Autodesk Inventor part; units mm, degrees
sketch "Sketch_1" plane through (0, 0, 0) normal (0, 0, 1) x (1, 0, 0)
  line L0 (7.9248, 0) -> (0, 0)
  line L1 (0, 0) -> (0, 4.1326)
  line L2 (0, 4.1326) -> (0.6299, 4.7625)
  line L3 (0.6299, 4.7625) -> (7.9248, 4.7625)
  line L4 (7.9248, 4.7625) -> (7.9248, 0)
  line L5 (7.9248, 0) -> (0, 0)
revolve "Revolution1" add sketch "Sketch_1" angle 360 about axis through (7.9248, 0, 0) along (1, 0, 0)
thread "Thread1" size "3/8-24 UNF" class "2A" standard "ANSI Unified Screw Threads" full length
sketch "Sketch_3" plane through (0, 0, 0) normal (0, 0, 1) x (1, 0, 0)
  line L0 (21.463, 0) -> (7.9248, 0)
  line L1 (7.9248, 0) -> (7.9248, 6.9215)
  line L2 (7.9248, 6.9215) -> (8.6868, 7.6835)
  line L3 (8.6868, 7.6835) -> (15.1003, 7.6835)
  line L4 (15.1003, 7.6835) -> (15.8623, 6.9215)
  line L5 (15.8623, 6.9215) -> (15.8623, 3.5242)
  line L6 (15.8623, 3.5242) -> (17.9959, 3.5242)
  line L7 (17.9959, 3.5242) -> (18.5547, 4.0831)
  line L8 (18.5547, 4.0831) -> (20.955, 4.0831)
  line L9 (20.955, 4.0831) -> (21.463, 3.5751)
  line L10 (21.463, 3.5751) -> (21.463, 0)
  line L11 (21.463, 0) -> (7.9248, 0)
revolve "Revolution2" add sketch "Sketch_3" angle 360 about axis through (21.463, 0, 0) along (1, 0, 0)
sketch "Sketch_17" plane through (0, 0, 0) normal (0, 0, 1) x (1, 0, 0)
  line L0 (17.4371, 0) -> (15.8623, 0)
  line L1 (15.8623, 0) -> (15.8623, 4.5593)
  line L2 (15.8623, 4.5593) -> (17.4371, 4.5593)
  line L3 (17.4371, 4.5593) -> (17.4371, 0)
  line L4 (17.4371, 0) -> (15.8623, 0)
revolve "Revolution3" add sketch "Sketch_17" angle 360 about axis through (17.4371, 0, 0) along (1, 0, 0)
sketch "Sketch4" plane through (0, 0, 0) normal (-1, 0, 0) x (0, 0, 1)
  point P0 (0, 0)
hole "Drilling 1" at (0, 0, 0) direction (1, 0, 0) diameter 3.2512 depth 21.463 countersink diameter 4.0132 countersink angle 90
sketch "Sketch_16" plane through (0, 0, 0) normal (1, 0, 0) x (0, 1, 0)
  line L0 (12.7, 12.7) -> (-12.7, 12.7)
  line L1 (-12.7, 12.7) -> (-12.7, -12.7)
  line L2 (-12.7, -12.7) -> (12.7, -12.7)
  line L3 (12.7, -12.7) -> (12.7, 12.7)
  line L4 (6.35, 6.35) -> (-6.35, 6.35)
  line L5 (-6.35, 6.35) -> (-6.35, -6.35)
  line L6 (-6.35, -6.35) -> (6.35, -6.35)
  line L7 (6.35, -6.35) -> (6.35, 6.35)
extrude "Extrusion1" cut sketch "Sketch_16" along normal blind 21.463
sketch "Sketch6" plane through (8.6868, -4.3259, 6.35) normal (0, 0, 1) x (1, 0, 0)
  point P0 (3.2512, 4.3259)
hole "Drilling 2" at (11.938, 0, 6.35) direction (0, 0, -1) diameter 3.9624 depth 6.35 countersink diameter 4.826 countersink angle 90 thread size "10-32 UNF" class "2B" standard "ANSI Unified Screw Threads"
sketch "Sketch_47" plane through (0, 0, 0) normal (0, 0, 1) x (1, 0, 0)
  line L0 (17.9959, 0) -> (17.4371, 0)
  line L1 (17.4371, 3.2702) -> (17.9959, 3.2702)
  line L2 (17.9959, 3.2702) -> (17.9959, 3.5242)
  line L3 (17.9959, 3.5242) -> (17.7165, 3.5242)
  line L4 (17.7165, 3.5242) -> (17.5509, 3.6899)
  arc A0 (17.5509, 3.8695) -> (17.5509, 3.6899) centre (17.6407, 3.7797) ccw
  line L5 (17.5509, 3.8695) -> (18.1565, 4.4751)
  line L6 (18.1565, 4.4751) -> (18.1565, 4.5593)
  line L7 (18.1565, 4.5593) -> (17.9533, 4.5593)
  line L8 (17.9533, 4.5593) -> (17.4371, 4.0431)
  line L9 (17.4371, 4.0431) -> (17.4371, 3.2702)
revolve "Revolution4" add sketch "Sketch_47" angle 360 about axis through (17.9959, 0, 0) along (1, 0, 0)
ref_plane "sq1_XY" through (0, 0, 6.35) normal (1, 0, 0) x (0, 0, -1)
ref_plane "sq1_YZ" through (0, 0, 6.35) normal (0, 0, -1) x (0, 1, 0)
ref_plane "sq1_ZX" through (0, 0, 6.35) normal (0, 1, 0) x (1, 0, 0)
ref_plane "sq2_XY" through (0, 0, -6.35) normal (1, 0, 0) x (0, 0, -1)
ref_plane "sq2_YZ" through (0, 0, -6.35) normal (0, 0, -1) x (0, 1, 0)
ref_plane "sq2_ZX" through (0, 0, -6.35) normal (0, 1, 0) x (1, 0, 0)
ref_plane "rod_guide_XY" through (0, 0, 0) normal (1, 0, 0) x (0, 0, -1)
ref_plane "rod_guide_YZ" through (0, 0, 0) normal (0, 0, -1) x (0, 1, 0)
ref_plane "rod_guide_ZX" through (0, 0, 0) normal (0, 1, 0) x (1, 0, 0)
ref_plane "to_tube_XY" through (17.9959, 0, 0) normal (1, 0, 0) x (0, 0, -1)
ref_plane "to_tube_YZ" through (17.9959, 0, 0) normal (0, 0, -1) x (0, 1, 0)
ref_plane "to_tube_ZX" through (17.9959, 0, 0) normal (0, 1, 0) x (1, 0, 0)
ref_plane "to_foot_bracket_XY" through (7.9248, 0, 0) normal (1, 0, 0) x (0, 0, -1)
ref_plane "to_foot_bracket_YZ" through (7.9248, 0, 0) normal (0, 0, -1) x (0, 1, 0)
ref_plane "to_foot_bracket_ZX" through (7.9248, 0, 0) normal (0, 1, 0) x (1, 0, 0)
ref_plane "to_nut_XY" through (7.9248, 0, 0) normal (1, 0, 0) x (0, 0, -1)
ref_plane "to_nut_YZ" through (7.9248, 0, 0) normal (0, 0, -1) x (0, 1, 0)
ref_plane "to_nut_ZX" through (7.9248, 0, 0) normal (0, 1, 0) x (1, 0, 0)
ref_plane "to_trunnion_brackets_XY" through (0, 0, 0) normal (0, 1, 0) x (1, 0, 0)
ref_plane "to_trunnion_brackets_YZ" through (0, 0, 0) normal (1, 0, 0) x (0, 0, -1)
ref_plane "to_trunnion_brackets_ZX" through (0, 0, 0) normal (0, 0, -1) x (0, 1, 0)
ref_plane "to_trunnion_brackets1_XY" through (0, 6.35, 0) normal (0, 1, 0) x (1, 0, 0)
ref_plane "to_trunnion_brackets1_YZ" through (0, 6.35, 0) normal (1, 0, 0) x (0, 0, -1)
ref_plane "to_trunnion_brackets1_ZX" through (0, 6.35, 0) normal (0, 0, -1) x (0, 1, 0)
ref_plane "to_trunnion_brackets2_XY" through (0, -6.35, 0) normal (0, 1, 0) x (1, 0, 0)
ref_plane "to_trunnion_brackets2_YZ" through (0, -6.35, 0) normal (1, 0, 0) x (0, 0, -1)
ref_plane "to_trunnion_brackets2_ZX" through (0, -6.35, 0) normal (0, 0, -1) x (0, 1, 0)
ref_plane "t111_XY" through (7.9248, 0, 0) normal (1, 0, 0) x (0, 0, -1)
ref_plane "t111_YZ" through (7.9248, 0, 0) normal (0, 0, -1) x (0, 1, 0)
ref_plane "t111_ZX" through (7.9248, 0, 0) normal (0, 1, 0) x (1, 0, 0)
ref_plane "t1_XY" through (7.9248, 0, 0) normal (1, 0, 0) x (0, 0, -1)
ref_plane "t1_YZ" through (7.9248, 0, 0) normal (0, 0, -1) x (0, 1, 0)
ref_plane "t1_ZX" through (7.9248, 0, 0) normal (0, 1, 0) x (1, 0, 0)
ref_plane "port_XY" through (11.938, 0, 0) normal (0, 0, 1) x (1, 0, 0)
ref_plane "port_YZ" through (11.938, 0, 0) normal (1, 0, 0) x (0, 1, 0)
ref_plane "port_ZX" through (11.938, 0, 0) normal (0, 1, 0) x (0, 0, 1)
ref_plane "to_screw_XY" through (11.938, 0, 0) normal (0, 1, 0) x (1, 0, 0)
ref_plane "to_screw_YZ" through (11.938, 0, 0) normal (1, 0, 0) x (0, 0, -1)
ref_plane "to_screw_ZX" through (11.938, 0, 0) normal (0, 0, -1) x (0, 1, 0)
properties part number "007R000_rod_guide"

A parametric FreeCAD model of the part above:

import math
import FreeCAD as App
import Part
import Sketcher

V = App.Vector
Q = App.Units.Quantity

doc = App.newDocument("Part")
body = doc.addObject("PartDesign::Body", "Body")

# Sketch on XY plane
sketch1 = body.newObject("Sketcher::SketchObject", "Sketch")
sketch1.AttachmentSupport = (doc.getObject("XY_Plane"), [""])
sketch1.MapMode = "FlatFace"
sketch1.addGeometry([
    Part.LineSegment(V(0, 0, 0), V(7.9248, 0, 0)),  # 0
    Part.LineSegment(V(7.9248, 0, 0), V(7.9248, 4.7625, 0)),  # 1
    Part.LineSegment(V(7.9248, 4.7625, 0), V(0.6299, 4.7625, 0)),  # 2
    Part.LineSegment(V(0.6299, 4.7625, 0), V(0, 4.1326, 0)),  # 3
    Part.LineSegment(V(0, 4.1326, 0), V(0, 0, 0)),  # 4
], False)
sketch1.addConstraint([
    Sketcher.Constraint("Coincident", 0, 2, 1, 1),
    Sketcher.Constraint("Coincident", 1, 2, 2, 1),
    Sketcher.Constraint("Coincident", 2, 2, 3, 1),
    Sketcher.Constraint("Coincident", 3, 2, 4, 1),
    Sketcher.Constraint("Coincident", 4, 2, 0, 1),
    Sketcher.Constraint("Horizontal", 0),
    Sketcher.Constraint("Vertical", 1),
    Sketcher.Constraint("Horizontal", 2),
    Sketcher.Constraint("Vertical", 4),
    Sketcher.Constraint("Coincident", 4, 2, -1, 1),
    Sketcher.Constraint("Angle", 3, Q("-135 deg")),
    Sketcher.Constraint("DistanceX", 0, 1, 0, 2, Q("0.312 in")),
    Sketcher.Constraint("DistanceY", 1, 1, 1, 2, Q("0.1875 in")),
    Sketcher.Constraint("DistanceX", 2, 2, 2, 1, Q("0.2872 in")),
])
revolution = body.newObject("PartDesign::Revolution", "Revolution")
revolution.Profile = sketch1
revolution.ReferenceAxis = (sketch1, ["H_Axis"])
revolution.Angle = 360

# Sketch on XY plane
sketch2 = body.newObject("Sketcher::SketchObject", "Sketch001")
sketch2.AttachmentSupport = (doc.getObject("XY_Plane"), [""])
sketch2.MapMode = "FlatFace"
sketch2.addGeometry([
    Part.LineSegment(V(7.9248, 0, 0), V(21.463, 0, 0)),  # 0
    Part.LineSegment(V(21.463, 0, 0), V(21.463, 3.5751, 0)),  # 1
    Part.LineSegment(V(21.463, 3.5751, 0), V(20.955, 4.0831, 0)),  # 2
    Part.LineSegment(V(20.955, 4.0831, 0), V(18.5547, 4.0831, 0)),  # 3
    Part.LineSegment(V(18.5547, 4.0831, 0), V(17.9959, 3.5242, 0)),  # 4
    Part.LineSegment(V(17.9959, 3.5242, 0), V(15.8623, 3.5242, 0)),  # 5
    Part.LineSegment(V(15.8623, 3.5242, 0), V(15.8623, 6.9215, 0)),  # 6
    Part.LineSegment(V(15.8623, 6.9215, 0), V(15.1003, 7.6835, 0)),  # 7
    Part.LineSegment(V(15.1003, 7.6835, 0), V(8.6868, 7.6835, 0)),  # 8
    Part.LineSegment(V(8.6868, 7.6835, 0), V(7.9248, 6.9215, 0)),  # 9
    Part.LineSegment(V(7.9248, 6.9215, 0), V(7.9248, 0, 0)),  # 10
], False)
sketch2.addConstraint([
    Sketcher.Constraint("Coincident", 0, 2, 1, 1),
    Sketcher.Constraint("Coincident", 1, 2, 2, 1),
    Sketcher.Constraint("Coincident", 2, 2, 3, 1),
    Sketcher.Constraint("Coincident", 3, 2, 4, 1),
    Sketcher.Constraint("Coincident", 4, 2, 5, 1),
    Sketcher.Constraint("Coincident", 5, 2, 6, 1),
    Sketcher.Constraint("Coincident", 6, 2, 7, 1),
    Sketcher.Constraint("Coincident", 7, 2, 8, 1),
    Sketcher.Constraint("Coincident", 8, 2, 9, 1),
    Sketcher.Constraint("Coincident", 9, 2, 10, 1),
    Sketcher.Constraint("Coincident", 10, 2, 0, 1),
    Sketcher.Constraint("Horizontal", 0),
    Sketcher.Constraint("Vertical", 1),
    Sketcher.Constraint("Horizontal", 3),
    Sketcher.Constraint("Horizontal", 5),
    Sketcher.Constraint("Vertical", 6),
    Sketcher.Constraint("Horizontal", 8),
    Sketcher.Constraint("Vertical", 10),
    Sketcher.Constraint("PointOnObject", 0, 2, -1),
    Sketcher.Constraint("Perpendicular", 2, 4),
    Sketcher.Constraint("Perpendicular", 4, 7),
    Sketcher.Constraint("Perpendicular", 7, 9),
    Sketcher.Constraint("Horizontal", 6, 2, 9, 2),
    Sketcher.Constraint("Equal", 7, 9),
    Sketcher.Constraint("DistanceX", 0, 1, 0, 2, Q("0.533 in")),
    Sketcher.Constraint("DistanceX", 5, 2, 5, 1, Q("0.084 in")),
    Sketcher.Constraint("DistanceX", 2, 2, 1, 2, Q("0.02 in")),
    Sketcher.Constraint("DistanceX", 7, 2, 6, 2, Q("0.03 in")),
    Sketcher.Constraint("DistanceX", 3, 2, 3, 1, Q("0.0945 in")),
    Sketcher.Constraint("DistanceX", 8, 2, 8, 1, Q("0.2525 in")),
    Sketcher.Constraint("DistanceY", 10, 2, 10, 1, Q("0.2725 in")),
    Sketcher.Constraint("DistanceX", -1, 1, 0, 2, Q("0.845 in")),
    Sketcher.Constraint("DistanceY", 1, 1, 1, 2, 3.575),
])
revolution2 = body.newObject("PartDesign::Revolution", "Revolution001")
revolution2.Profile = sketch2
revolution2.ReferenceAxis = (sketch2, ["H_Axis"])
revolution2.Angle = 360

# Sketch on XY plane
sketch3 = body.newObject("Sketcher::SketchObject", "Sketch002")
sketch3.AttachmentSupport = (doc.getObject("XY_Plane"), [""])
sketch3.MapMode = "FlatFace"
sketch3.addGeometry([
    Part.LineSegment(V(15.8623, 0, 0), V(17.4371, 0, 0)),
    Part.LineSegment(V(17.4371, 0, 0), V(17.4371, 4.5593, 0)),
    Part.LineSegment(V(17.4371, 4.5593, 0), V(15.8623, 4.5593, 0)),
    Part.LineSegment(V(15.8623, 4.5593, 0), V(15.8623, 0, 0)),
], False)
sketch3.addConstraint([
    Sketcher.Constraint("Coincident", 0, 2, 1, 1),
    Sketcher.Constraint("Coincident", 1, 2, 2, 1),
    Sketcher.Constraint("Coincident", 2, 2, 3, 1),
    Sketcher.Constraint("Coincident", 3, 2, 0, 1),
    Sketcher.Constraint("Horizontal", 0),
    Sketcher.Constraint("Vertical", 1),
    Sketcher.Constraint("Horizontal", 2),
    Sketcher.Constraint("Vertical", 3),
    Sketcher.Constraint("PointOnObject", 0, 2, -1),
    Sketcher.Constraint("DistanceX", 0, 1, 0, 2, Q("0.062 in")),
    Sketcher.Constraint("DistanceY", 1, 1, 1, 2, Q("0.1795 in")),
    Sketcher.Constraint("DistanceX", -1, 1, 0, 2, Q("0.6865 in")),
])
revolution3 = body.newObject("PartDesign::Revolution", "Revolution002")
revolution3.Profile = sketch3
revolution3.ReferenceAxis = (sketch3, ["H_Axis"])
revolution3.Angle = 360

# Sketch on YZ plane
sketch4 = body.newObject("Sketcher::SketchObject", "Sketch003")
sketch4.AttachmentSupport = (doc.getObject("YZ_Plane"), [""])
sketch4.MapMode = "FlatFace"
sketch4.addGeometry(Part.Circle(V(0, 0, 0), V(0, 0, 1), 1.6256), False)
sketch4.addConstraint([
    Sketcher.Constraint("Coincident", 0, 3, -1, 1),
    Sketcher.Constraint("Diameter", 0, Q("0.128 in")),
])
doc.recompute()
hole = body.newObject("PartDesign::Hole", "Hole")
hole.Profile = sketch4
hole.ThreadType = "None"
hole.Diameter = Q("0.128 in")
hole.DepthType = "Dimension"
hole.Depth = Q("0.845 in")
hole.DrillPoint = "Flat"
hole.HoleCutType = "Countersink"
hole.HoleCutDiameter = Q("0.158 in")
hole.HoleCutCountersinkAngle = 90
hole.Reversed = True

# Sketch on YZ plane
sketch5 = body.newObject("Sketcher::SketchObject", "Sketch004")
sketch5.AttachmentSupport = (doc.getObject("YZ_Plane"), [""])
sketch5.MapMode = "FlatFace"
sketch5.addGeometry([
    Part.LineSegment(V(12.7, -12.7, 0), V(12.7, 12.7, 0)),  # 0
    Part.LineSegment(V(12.7, 12.7, 0), V(-12.7, 12.7, 0)),  # 1
    Part.LineSegment(V(-12.7, 12.7, 0), V(-12.7, -12.7, 0)),  # 2
    Part.LineSegment(V(-12.7, -12.7, 0), V(12.7, -12.7, 0)),  # 3
    Part.LineSegment(V(-6.35, 6.35, 0), V(6.35, 6.35, 0)),  # 4
    Part.LineSegment(V(6.35, 6.35, 0), V(6.35, -6.35, 0)),  # 5
    Part.LineSegment(V(6.35, -6.35, 0), V(-6.35, -6.35, 0)),  # 6
    Part.LineSegment(V(-6.35, -6.35, 0), V(-6.35, 6.35, 0)),  # 7
], False)
sketch5.addConstraint([
    Sketcher.Constraint("Coincident", 0, 2, 1, 1),
    Sketcher.Constraint("Coincident", 1, 2, 2, 1),
    Sketcher.Constraint("Coincident", 2, 2, 3, 1),
    Sketcher.Constraint("Coincident", 3, 2, 0, 1),
    Sketcher.Constraint("Coincident", 4, 2, 5, 1),
    Sketcher.Constraint("Coincident", 5, 2, 6, 1),
    Sketcher.Constraint("Coincident", 6, 2, 7, 1),
    Sketcher.Constraint("Coincident", 7, 2, 4, 1),
    Sketcher.Constraint("Vertical", 0),
    Sketcher.Constraint("Horizontal", 1),
    Sketcher.Constraint("Vertical", 2),
    Sketcher.Constraint("Horizontal", 3),
    Sketcher.Constraint("Horizontal", 4),
    Sketcher.Constraint("Vertical", 5),
    Sketcher.Constraint("Horizontal", 6),
    Sketcher.Constraint("Vertical", 7),
    Sketcher.Constraint("Symmetric", 0, 2, 2, 2, -1, 1),
    Sketcher.Constraint("Symmetric", 4, 2, 6, 2, -1, 1),
    Sketcher.Constraint("Equal", 3, 0),
    Sketcher.Constraint("Equal", 6, 5),
    Sketcher.Constraint("DistanceX", 1, 2, 1, 1, Q("1 in")),
    Sketcher.Constraint("DistanceX", 4, 1, 4, 2, Q("0.5 in")),
])
pocket1 = body.newObject("PartDesign::Pocket", "Pocket")
pocket1.Profile = sketch5
pocket1.Length = Q("0.845 in")
pocket1.Reversed = True

# Sketch on XY plane
sketch6 = body.newObject("Sketcher::SketchObject", "Sketch005")
sketch6.AttachmentSupport = (doc.getObject("XY_Plane"), [""])
sketch6.MapMode = "FlatFace"
sketch6.AttachmentOffset = App.Placement(V(0, 0, 0.25 * 25.4), App.Rotation())
sketch6.addGeometry(Part.Circle(V(11.938, 0, 0), V(0, 0, 1), 1.9812), False)
sketch6.addConstraint([
    Sketcher.Constraint("PointOnObject", 0, 3, -1),
    Sketcher.Constraint("Diameter", 0, Q("0.156 in")),
    Sketcher.Constraint("DistanceX", -1, 1, 0, 3, Q("0.47 in")),
])
doc.recompute()
hole2 = body.newObject("PartDesign::Hole", "Hole001")
hole2.Profile = sketch6
hole2.ThreadType = "None"
hole2.Diameter = Q("0.156 in")
hole2.DepthType = "Dimension"
hole2.Depth = Q("0.25 in")
hole2.DrillPoint = "Flat"
hole2.HoleCutType = "Countersink"
hole2.HoleCutDiameter = Q("0.19 in")
hole2.HoleCutCountersinkAngle = 90

# Sketch on XY plane
sketch7 = body.newObject("Sketcher::SketchObject", "Sketch006")
sketch7.AttachmentSupport = (doc.getObject("XY_Plane"), [""])
sketch7.MapMode = "FlatFace"
sketch7.addGeometry([
    Part.LineSegment(V(17.4371, 4.0431, 0), V(17.4371, 3.2702, 0)),  # 0
    Part.LineSegment(V(17.4371, 3.2702, 0), V(17.9959, 3.2702, 0)),  # 1
    Part.LineSegment(V(17.9959, 3.2702, 0), V(17.9959, 3.5242, 0)),  # 2
    Part.LineSegment(V(17.9959, 3.5242, 0), V(17.7165, 3.5242, 0)),  # 3
    Part.LineSegment(V(17.7165, 3.5242, 0), V(17.5509, 3.6899, 0)),  # 4
    Part.ArcOfCircle(Part.Circle(V(17.6407, 3.7797, 0), V(0, 0, 1), 0.126996), math.radians(135), math.radians(225)),  # 5
    Part.LineSegment(V(17.5509, 3.8695, 0), V(18.1565, 4.4751, 0)),  # 6
    Part.LineSegment(V(18.1565, 4.4751, 0), V(18.1565, 4.5593, 0)),  # 7
    Part.LineSegment(V(18.1565, 4.5593, 0), V(17.9533, 4.5593, 0)),  # 8
    Part.LineSegment(V(17.9533, 4.5593, 0), V(17.4371, 4.0431, 0)),  # 9
], False)
sketch7.addConstraint([
    Sketcher.Constraint("Coincident", 0, 2, 1, 1),
    Sketcher.Constraint("Coincident", 1, 2, 2, 1),
    Sketcher.Constraint("Coincident", 2, 2, 3, 1),
    Sketcher.Constraint("Coincident", 3, 2, 4, 1),
    Sketcher.Constraint("Tangent", 4, 2, 5, 2),
    Sketcher.Constraint("Tangent", 5, 1, 6, 1),
    Sketcher.Constraint("Coincident", 6, 2, 7, 1),
    Sketcher.Constraint("Coincident", 7, 2, 8, 1),
    Sketcher.Constraint("Coincident", 8, 2, 9, 1),
    Sketcher.Constraint("Coincident", 9, 2, 0, 1),
    Sketcher.Constraint("Vertical", 0),
    Sketcher.Constraint("Horizontal", 1),
    Sketcher.Constraint("Vertical", 2),
    Sketcher.Constraint("Horizontal", 3),
    Sketcher.Constraint("Vertical", 7),
    Sketcher.Constraint("Horizontal", 8),
    Sketcher.Constraint("Perpendicular", 4, 6),
    Sketcher.Constraint("Parallel", 6, 9),
    Sketcher.Constraint("Vertical", 4, 2, 5, 1),
    Sketcher.Constraint("Radius", 5, Q("0.005 in")),
    Sketcher.Constraint("DistanceY", 2, 1, 2, 2, Q("0.01 in")),
    Sketcher.Constraint("DistanceX", 1, 1, 1, 2, Q("0.022 in")),
    Sketcher.Constraint("DistanceX", 3, 2, 3, 1, Q("0.011 in")),
    Sketcher.Constraint("DistanceX", 8, 2, 8, 1, Q("0.008 in")),
    Sketcher.Constraint("DistanceY", 0, 2, 0, 1, 0.773),
    Sketcher.Constraint("DistanceY", 7, 1, 7, 2, 0.0842),
    Sketcher.Constraint("DistanceY", -1, 1, 5, 3, Q("0.1488 in")),
    Sketcher.Constraint("DistanceX", -1, 1, 0, 2, Q("0.6865 in")),
    Sketcher.Constraint("DistanceY", -1, 1, 7, 2, Q("0.1795 in")),
])
revolution4 = body.newObject("PartDesign::Revolution", "Revolution003")
revolution4.Profile = sketch7
revolution4.ReferenceAxis = (sketch7, ["H_Axis"])
revolution4.Angle = 360

doc.recompute()
